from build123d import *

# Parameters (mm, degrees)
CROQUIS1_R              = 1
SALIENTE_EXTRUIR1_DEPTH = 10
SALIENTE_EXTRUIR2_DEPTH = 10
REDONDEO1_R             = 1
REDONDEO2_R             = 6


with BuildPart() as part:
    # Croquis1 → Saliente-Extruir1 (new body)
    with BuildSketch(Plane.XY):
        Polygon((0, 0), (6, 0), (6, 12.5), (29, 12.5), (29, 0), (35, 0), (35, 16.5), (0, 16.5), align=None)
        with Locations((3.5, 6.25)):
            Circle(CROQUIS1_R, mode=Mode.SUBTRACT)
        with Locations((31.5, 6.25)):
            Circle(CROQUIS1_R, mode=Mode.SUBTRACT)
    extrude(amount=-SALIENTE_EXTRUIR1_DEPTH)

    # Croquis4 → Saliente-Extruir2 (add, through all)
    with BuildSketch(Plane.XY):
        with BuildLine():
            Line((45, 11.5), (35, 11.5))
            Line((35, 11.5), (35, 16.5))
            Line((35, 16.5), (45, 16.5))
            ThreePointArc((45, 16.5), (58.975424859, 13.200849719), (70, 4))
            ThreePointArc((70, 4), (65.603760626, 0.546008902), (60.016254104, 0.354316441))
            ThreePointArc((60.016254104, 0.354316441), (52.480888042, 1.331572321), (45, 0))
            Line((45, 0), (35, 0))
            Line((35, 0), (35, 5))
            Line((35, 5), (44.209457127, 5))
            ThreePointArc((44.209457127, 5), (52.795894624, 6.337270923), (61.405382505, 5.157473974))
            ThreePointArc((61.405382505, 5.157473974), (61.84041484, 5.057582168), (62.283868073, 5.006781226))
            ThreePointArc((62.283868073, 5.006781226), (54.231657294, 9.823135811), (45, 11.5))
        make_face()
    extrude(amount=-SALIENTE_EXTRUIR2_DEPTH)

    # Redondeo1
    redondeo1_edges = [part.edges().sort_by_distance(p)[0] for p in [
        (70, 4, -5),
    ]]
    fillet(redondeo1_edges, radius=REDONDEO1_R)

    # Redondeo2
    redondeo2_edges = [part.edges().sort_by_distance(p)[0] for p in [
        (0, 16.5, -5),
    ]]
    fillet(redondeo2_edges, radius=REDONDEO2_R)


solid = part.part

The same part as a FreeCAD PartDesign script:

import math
import FreeCAD as App
import Part
import Sketcher
from FreeCAD import Vector


def edges_at(feature, points):
    """Names of the edges that pass closest to the given points."""
    edges = feature.Shape.Edges
    near = lambda p: min(range(len(edges)), key=lambda i: edges[i].distToShape(Part.Vertex(*p))[0])
    return sorted({f"Edge{near(p) + 1}" for p in points})


def add_polygon(sketch, points):
    """Adds a closed chain of lines whose ends are joined by coincident constraints."""
    first, n = sketch.GeometryCount, len(points)
    for a, b in zip(points, points[1:] + points[:1]):
        sketch.addGeometry(Part.LineSegment(App.Vector(*a, 0), App.Vector(*b, 0)), False)
    for i in range(n):
        sketch.addConstraint(Sketcher.Constraint("Coincident", first + i, 2, first + (i + 1) % n, 1))

doc = App.newDocument("Part")
body = doc.addObject("PartDesign::Body", "Body")

# Sketch on XY plane
sketch1 = body.newObject("Sketcher::SketchObject", "Sketch")
sketch1.AttachmentSupport = (doc.getObject("XY_Plane"), [""])
sketch1.MapMode = "FlatFace"
add_polygon(sketch1, [(0, 0), (6, 0), (6, 12.5), (29, 12.5), (29, 0), (35, 0), (35, 16.5), (0, 16.5)])  # lines 0-7
sketch1.addGeometry(Part.Circle(Vector(3.5, 6.2, 0), Vector(0, 0, 1), 1), False)  # 8
sketch1.addGeometry(Part.Circle(Vector(31.5, 6.2, 0), Vector(0, 0, 1), 1), False)  # 9
sketch1.addConstraint(Sketcher.Constraint("Horizontal", 0))
sketch1.addConstraint(Sketcher.Constraint("Vertical", 1))
sketch1.addConstraint(Sketcher.Constraint("Horizontal", 2))
sketch1.addConstraint(Sketcher.Constraint("Vertical", 3))
sketch1.addConstraint(Sketcher.Constraint("Horizontal", 4))
sketch1.addConstraint(Sketcher.Constraint("Vertical", 5))
sketch1.addConstraint(Sketcher.Constraint("Horizontal", 6))
sketch1.addConstraint(Sketcher.Constraint("Vertical", 7))
sketch1.addConstraint(Sketcher.Constraint("Coincident", 7, 2, -1, 1))
sketch1.addConstraint(Sketcher.Constraint("Equal", 8, 9))
sketch1.addConstraint(Sketcher.Constraint("PointOnObject", 3, 2, -1))
sketch1.addConstraint(Sketcher.Constraint("Horizontal", 8, 3, 9, 3))
sketch1.addConstraint(Sketcher.Constraint("Equal", 0, 4))
sketch1.addConstraint(Sketcher.Constraint("Diameter", 8, 2.0))
sketch1.addConstraint(Sketcher.Constraint("DistanceX", 0, 1, 0, 2, 6.0))
sketch1.addConstraint(Sketcher.Constraint("DistanceX", 2, 1, 2, 2, 23.0))
sketch1.addConstraint(Sketcher.Constraint("DistanceY", 1, 1, 1, 2, 12.5))
sketch1.addConstraint(Sketcher.Constraint("DistanceY", 5, 1, 5, 2, 16.5))
sketch1.addConstraint(Sketcher.Constraint("DistanceX", 8, 3, 9, 3, 28.0))
sketch1.addConstraint(Sketcher.Constraint("DistanceX", -1, 1, 8, 3, 3.5))
sketch1.addConstraint(Sketcher.Constraint("DistanceY", -1, 1, 8, 3, 6.25))
pad1 = body.newObject("PartDesign::Pad", "Pad")
pad1.Profile = sketch1
pad1.Length = 10
pad1.Reversed = True

# Sketch on XY plane
sketch2 = body.newObject("Sketcher::SketchObject", "Sketch001")
sketch2.AttachmentSupport = (doc.getObject("XY_Plane"), [""])
sketch2.MapMode = "FlatFace"
sketch2.addGeometry(Part.LineSegment(Vector(35, 11.5, 0), Vector(45, 11.5, 0)), False)
sketch2.addGeometry(Part.ArcOfCircle(Part.Circle(Vector(45, -14.8, 0), Vector(0, 0, 1), 26.3), math.radians(49), math.radians(90)), False)
sketch2.addGeometry(Part.ArcOfCircle(Part.Circle(Vector(62.5, 9, 0), Vector(0, 0, 1), 4), math.radians(-106.13), math.radians(-93.34)), False)
sketch2.addGeometry(Part.ArcOfCircle(Part.Circle(Vector(53.1, -23.7, 0), Vector(0, 0, 1), 30), math.radians(74), math.radians(107)), False)
sketch2.addGeometry(Part.LineSegment(Vector(44.2, 5, 0), Vector(35, 5, 0)), False)
sketch2.addGeometry(Part.LineSegment(Vector(35, 5, 0), Vector(35, 0, 0)), False)
sketch2.addGeometry(Part.LineSegment(Vector(35, 0, 0), Vector(45, 0, 0)), False)
sketch2.addGeometry(Part.ArcOfCircle(Part.Circle(Vector(53.1, -23.7, 0), Vector(0, 0, 1), 25), math.radians(74), math.radians(109)), False)
sketch2.addGeometry(Part.ArcOfCircle(Part.Circle(Vector(62.5, 9, 0), Vector(0, 0, 1), 9), math.radians(-106), math.radians(-34)), False)
sketch2.addGeometry(Part.ArcOfCircle(Part.Circle(Vector(45, -14.8, 0), Vector(0, 0, 1), 31.2), math.radians(37), math.radians(90)), False)
sketch2.addGeometry(Part.LineSegment(Vector(45, 16.5, 0), Vector(35, 16.5, 0)), False)
sketch2.addGeometry(Part.LineSegment(Vector(35, 16.5, 0), Vector(35, 11.5, 0)), False)
sketch2.addConstraint(Sketcher.Constraint("Tangent", 0, 2, 1, 2))
sketch2.addConstraint(Sketcher.Constraint("Coincident", 1, 1, 2, 2))
sketch2.addConstraint(Sketcher.Constraint("Tangent", 2, 1, 3, 1))
sketch2.addConstraint(Sketcher.Constraint("Coincident", 3, 2, 4, 1))
sketch2.addConstraint(Sketcher.Constraint("Coincident", 4, 2, 5, 1))
sketch2.addConstraint(Sketcher.Constraint("Coincident", 5, 2, 6, 1))
sketch2.addConstraint(Sketcher.Constraint("Coincident", 6, 2, 7, 2))
sketch2.addConstraint(Sketcher.Constraint("Tangent", 7, 1, 8, 1))
sketch2.addConstraint(Sketcher.Constraint("Coincident", 8, 2, 9, 1))
sketch2.addConstraint(Sketcher.Constraint("Tangent", 9, 2, 10, 1))
sketch2.addConstraint(Sketcher.Constraint("Coincident", 10, 2, 11, 1))
sketch2.addConstraint(Sketcher.Constraint("Coincident", 11, 2, 0, 1))
sketch2.addConstraint(Sketcher.Constraint("Horizontal", 0))
sketch2.addConstraint(Sketcher.Constraint("Horizontal", 4))
sketch2.addConstraint(Sketcher.Constraint("Vertical", 5))
sketch2.addConstraint(Sketcher.Constraint("Horizontal", 6))
sketch2.addConstraint(Sketcher.Constraint("Horizontal", 10))
sketch2.addConstraint(Sketcher.Constraint("Vertical", 11))
sketch2.addConstraint(Sketcher.Constraint("Coincident", 7, 3, 3, 3))
sketch2.addConstraint(Sketcher.Constraint("Coincident", 8, 3, 2, 3))
sketch2.addConstraint(Sketcher.Constraint("Coincident", 9, 3, 1, 3))
sketch2.addConstraint(Sketcher.Constraint("PointOnObject", 5, 2, -1))
sketch2.addConstraint(Sketcher.Constraint("Vertical", 0, 2, 6, 2))
sketch2.addConstraint(Sketcher.Constraint("Vertical", 5, 2, 10, 2))
sketch2.addConstraint(Sketcher.Constraint("Equal", 5, 11))
sketch2.addConstraint(Sketcher.Constraint("Radius", 2, 4.0))
sketch2.addConstraint(Sketcher.Constraint("Radius", 3, 30.0))
sketch2.addConstraint(Sketcher.Constraint("Radius", 7, 25.0))
sketch2.addConstraint(Sketcher.Constraint("DistanceX", 0, 1, 0, 2, 10.0))
sketch2.addConstraint(Sketcher.Constraint("DistanceY", 5, 2, 5, 1, 5.0))
sketch2.addConstraint(Sketcher.Constraint("Radius", 1, 26.25))
sketch2.addConstraint(Sketcher.Constraint("DistanceX", -1, 1, 1, 3, 45.0))
sketch2.addConstraint(Sketcher.Constraint("DistanceY", -1, 1, 2, 3, 9.0))
sketch2.addConstraint(Sketcher.Constraint("DistanceX", -1, 1, 8, 2, 70.0))
sketch2.addConstraint(Sketcher.Constraint("DistanceY", -1, 1, 8, 2, 4.0))
pad2 = body.newObject("PartDesign::Pad", "Pad001")
pad2.Profile = sketch2
pad2.Length = 10
pad2.Reversed = True
doc.recompute()

fillet = body.newObject("PartDesign::Fillet", "Fillet")
fillet.Base = (pad2, edges_at(pad2, [(70, 4, -5)]))
fillet.Radius = 1
doc.recompute()

fillet2 = body.newObject("PartDesign::Fillet", "Fillet001")
fillet2.Base = (fillet, edges_at(fillet, [(0, 16.5, -5)]))
fillet2.Radius = 6

doc.recompute()
